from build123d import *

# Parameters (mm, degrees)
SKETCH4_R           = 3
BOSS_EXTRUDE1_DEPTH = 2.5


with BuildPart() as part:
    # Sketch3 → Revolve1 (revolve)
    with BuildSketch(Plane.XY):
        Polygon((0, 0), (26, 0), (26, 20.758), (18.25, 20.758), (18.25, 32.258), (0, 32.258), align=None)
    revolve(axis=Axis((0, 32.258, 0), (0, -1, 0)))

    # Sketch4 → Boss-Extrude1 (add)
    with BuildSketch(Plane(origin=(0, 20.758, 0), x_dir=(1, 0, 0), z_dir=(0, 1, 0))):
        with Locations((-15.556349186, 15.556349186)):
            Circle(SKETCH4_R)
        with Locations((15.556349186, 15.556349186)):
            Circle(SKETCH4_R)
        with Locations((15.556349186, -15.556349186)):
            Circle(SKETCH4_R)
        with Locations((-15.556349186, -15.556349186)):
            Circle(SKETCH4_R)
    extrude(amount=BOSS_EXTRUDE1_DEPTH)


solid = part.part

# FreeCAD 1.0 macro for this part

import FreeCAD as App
import Part
import Sketcher


def add_polygon(sketch, points):
    """Adds a closed chain of lines whose ends are joined by coincident constraints."""
    first, n = sketch.GeometryCount, len(points)
    for a, b in zip(points, points[1:] + points[:1]):
        sketch.addGeometry(Part.LineSegment(App.Vector(*a, 0), App.Vector(*b, 0)), False)
    for i in range(n):
        sketch.addConstraint(Sketcher.Constraint("Coincident", first + i, 2, first + (i + 1) % n, 1))

doc = App.newDocument("Part")
body = doc.addObject("PartDesign::Body", "Body")

sketch1 = doc.addObject("Sketcher::SketchObject", "Sketch")
body.addObject(sketch1)
sketch1.AttachmentSupport = (doc.XY_Plane, [""])
sketch1.MapMode = "FlatFace"
add_polygon(sketch1, [(0, 0), (26, 0), (26, 20.758), (18.25, 20.758), (18.25, 32.258), (0, 32.258)])
sketch1.addConstraint([
    Sketcher.Constraint("Horizontal", 0),
    Sketcher.Constraint("Vertical", 1),
    Sketcher.Constraint("Horizontal", 2),
    Sketcher.Constraint("Vertical", 3),
    Sketcher.Constraint("Horizontal", 4),
    Sketcher.Constraint("Vertical", 5),
    Sketcher.Constraint("Coincident", 5, 2, -1, 1),
    Sketcher.Constraint("DistanceX", 0, 1, 0, 2, 26.0),
    Sketcher.Constraint("DistanceY", 3, 1, 3, 2, 11.5),
    Sketcher.Constraint("DistanceX", 2, 2, 2, 1, 7.75),
    Sketcher.Constraint("DistanceY", 1, 1, 1, 2, 20.758),
])
revolution = doc.addObject("PartDesign::Revolution", "Revolution")
body.addObject(revolution)
revolution.Profile = sketch1
revolution.ReferenceAxis = (sketch1, ["V_Axis"])
revolution.Angle = 360

sketch2 = doc.addObject("Sketcher::SketchObject", "Sketch001")
body.addObject(sketch2)
sketch2.AttachmentSupport = (doc.XZ_Plane, [""])
sketch2.MapMode = "FlatFace"
sketch2.AttachmentOffset = App.Placement(App.Vector(0, 0, -20.758), App.Rotation())
sketch2.addGeometry([
    Part.Circle(App.Vector(-15.556349, -15.556349, 0), App.Vector(0, 0, 1), 3),
    Part.Circle(App.Vector(15.556349, -15.556349, 0), App.Vector(0, 0, 1), 3),
    Part.Circle(App.Vector(15.556349, 15.556349, 0), App.Vector(0, 0, 1), 3),
    Part.Circle(App.Vector(-15.556349, 15.556349, 0), App.Vector(0, 0, 1), 3),
], False)
sketch2.addConstraint([
    Sketcher.Constraint("Equal", 0, 1),
    Sketcher.Constraint("Equal", 1, 2),
    Sketcher.Constraint("Equal", 2, 3),
    Sketcher.Constraint("Symmetric", 0, 3, 2, 3, -1, 1),
    Sketcher.Constraint("Symmetric", 1, 3, 3, 3, -1, 1),
    Sketcher.Constraint("Symmetric", 0, 3, 1, 3, -2),
    Sketcher.Constraint("Diameter", 0, 6.0),
    Sketcher.Constraint("DistanceX", 0, 3, 1, 3, 31.112698),
    Sketcher.Constraint("DistanceY", 1, 3, 2, 3, 31.112698),
])
pad1 = doc.addObject("PartDesign::Pad", "Pad")
body.addObject(pad1)
pad1.Profile = sketch2
pad1.Length = 2.5
pad1.Reversed = True

doc.recompute()
